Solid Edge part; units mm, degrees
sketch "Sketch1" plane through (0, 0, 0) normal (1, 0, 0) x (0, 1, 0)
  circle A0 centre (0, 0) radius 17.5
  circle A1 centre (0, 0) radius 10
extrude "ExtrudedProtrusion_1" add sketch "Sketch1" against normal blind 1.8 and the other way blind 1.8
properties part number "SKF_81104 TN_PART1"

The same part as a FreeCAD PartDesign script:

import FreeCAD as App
import Part
import Sketcher

doc = App.newDocument("Part")
body = doc.addObject("PartDesign::Body", "Body")

sketch1 = doc.addObject("Sketcher::SketchObject", "Sketch")
body.addObject(sketch1)
sketch1.AttachmentSupport = (doc.YZ_Plane, [""])
sketch1.MapMode = "FlatFace"
sketch1.addGeometry([
    Part.Circle(App.Vector(0, 0, 0), App.Vector(0, 0, 1), 18),
    Part.Circle(App.Vector(0, 0, 0), App.Vector(0, 0, 1), 10),
], False)
sketch1.addConstraint([
    Sketcher.Constraint("Coincident", 0, 3, -1, 1),
    Sketcher.Constraint("Coincident", 1, 3, -1, 1),
    Sketcher.Constraint("Diameter", 0, 35.0),
    Sketcher.Constraint("Diameter", 1, 20.0),
])
pad1 = doc.addObject("PartDesign::Pad", "Pad")
body.addObject(pad1)
pad1.Profile = sketch1
pad1.Type = "TwoLengths"
pad1.Length = 1.8
pad1.Length2 = 1.8
pad1.Reversed = True

doc.recompute()
